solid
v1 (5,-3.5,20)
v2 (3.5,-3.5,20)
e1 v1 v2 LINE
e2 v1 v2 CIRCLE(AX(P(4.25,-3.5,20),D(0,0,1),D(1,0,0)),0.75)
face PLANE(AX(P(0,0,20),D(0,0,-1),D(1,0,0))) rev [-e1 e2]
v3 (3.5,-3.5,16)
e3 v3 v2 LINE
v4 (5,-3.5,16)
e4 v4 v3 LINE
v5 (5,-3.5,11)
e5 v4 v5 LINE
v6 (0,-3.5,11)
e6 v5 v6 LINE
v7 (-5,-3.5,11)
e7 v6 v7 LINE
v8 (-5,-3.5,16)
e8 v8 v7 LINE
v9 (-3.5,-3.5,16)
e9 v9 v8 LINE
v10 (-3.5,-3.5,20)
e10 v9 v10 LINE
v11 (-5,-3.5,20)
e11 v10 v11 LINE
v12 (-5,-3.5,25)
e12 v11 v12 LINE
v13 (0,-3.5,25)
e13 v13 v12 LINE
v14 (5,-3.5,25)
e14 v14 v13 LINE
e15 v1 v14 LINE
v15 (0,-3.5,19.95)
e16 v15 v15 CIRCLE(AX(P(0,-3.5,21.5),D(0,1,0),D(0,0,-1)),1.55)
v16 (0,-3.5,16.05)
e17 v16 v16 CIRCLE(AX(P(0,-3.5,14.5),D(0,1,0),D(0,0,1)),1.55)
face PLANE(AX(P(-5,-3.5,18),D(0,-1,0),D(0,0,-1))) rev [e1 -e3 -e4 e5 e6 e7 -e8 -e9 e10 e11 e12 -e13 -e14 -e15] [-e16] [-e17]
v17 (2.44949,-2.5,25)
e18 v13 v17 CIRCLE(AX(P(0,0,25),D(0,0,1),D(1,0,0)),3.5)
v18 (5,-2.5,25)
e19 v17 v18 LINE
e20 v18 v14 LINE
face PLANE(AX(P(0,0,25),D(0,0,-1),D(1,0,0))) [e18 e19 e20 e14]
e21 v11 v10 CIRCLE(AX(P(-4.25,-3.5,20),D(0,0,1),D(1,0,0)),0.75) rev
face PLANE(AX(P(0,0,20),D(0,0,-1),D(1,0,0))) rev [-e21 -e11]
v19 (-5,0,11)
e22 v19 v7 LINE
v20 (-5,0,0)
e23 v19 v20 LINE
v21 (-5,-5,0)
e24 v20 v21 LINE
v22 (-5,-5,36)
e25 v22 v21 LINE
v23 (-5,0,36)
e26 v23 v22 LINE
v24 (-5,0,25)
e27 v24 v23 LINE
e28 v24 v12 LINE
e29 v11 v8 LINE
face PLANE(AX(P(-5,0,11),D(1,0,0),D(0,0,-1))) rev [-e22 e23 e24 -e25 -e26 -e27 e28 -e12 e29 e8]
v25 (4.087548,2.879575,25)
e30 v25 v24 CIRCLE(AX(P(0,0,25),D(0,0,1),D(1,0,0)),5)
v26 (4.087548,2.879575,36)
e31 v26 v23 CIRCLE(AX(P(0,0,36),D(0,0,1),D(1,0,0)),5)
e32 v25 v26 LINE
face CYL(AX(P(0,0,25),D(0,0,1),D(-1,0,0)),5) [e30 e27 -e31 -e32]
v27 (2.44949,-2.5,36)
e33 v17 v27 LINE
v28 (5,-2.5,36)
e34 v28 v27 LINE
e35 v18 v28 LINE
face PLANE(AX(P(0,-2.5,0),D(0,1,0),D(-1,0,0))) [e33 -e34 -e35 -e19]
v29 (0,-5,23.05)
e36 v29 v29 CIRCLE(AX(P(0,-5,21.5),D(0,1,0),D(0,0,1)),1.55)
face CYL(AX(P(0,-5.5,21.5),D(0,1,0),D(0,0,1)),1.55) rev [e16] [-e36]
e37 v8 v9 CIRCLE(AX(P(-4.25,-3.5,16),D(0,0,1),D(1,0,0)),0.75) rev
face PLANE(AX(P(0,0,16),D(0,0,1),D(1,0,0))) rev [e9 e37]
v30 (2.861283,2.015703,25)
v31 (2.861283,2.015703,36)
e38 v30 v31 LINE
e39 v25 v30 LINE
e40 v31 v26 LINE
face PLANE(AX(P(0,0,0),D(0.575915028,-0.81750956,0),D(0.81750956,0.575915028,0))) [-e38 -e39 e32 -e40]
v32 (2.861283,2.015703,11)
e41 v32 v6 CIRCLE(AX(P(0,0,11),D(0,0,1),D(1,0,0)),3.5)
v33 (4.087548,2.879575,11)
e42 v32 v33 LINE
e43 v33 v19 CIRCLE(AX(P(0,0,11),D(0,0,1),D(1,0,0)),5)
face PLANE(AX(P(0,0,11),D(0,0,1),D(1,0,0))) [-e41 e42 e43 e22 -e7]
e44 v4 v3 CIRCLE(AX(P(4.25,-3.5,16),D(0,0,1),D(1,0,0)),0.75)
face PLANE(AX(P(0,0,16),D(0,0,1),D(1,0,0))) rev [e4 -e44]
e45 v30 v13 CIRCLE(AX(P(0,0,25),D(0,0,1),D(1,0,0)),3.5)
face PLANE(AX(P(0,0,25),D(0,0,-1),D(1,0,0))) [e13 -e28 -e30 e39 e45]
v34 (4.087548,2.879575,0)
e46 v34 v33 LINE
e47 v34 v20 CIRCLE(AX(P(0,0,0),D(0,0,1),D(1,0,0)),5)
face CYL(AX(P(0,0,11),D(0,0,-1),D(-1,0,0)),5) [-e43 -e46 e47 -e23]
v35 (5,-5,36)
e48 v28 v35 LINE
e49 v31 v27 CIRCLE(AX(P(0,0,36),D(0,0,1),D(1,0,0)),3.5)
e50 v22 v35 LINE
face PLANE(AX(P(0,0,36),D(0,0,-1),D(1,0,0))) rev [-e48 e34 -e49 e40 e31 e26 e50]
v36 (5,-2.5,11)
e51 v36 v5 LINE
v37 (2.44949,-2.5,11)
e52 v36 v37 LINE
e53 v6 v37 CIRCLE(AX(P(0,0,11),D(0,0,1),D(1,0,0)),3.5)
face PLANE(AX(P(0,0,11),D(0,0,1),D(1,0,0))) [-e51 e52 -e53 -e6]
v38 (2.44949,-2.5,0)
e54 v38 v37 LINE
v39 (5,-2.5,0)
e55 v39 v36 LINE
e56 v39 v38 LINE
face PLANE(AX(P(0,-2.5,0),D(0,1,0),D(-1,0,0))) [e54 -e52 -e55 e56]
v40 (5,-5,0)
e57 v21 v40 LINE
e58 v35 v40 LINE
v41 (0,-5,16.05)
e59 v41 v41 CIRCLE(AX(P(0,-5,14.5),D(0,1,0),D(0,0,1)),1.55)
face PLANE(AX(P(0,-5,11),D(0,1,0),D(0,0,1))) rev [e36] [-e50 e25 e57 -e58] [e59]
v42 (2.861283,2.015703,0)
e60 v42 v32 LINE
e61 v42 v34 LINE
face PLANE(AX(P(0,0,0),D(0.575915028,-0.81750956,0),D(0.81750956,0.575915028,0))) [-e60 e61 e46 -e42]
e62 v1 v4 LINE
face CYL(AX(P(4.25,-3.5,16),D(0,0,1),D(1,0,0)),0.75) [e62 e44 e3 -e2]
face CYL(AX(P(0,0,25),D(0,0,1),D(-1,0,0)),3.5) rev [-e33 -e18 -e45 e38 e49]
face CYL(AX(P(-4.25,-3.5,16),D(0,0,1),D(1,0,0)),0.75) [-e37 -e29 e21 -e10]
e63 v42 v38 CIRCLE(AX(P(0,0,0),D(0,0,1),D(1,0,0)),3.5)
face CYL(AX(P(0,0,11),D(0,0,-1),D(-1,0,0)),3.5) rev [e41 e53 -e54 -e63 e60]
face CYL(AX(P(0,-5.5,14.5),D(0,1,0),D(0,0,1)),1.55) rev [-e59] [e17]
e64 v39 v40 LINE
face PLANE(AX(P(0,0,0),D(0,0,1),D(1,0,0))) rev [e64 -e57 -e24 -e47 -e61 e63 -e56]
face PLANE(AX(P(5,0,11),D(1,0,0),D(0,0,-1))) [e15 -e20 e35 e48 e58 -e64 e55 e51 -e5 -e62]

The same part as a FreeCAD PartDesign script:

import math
import FreeCAD as App
import Part
import Sketcher

doc = App.newDocument("Part")
params = doc.addObject("Spreadsheet::Sheet", "Params")
for row, (alias, value) in enumerate([
    ("sketch1_diameter", "7 mm"),
    ("sketch1_radius", "5 mm"),
    ("sketch1_height", "5 mm"),
    ("pad1_length", "11 mm"),
    ("sketch2_width", "10 mm"),
    ("sketch2_height", "1.5 mm"),
    ("pad2_length", "7 mm"),
    ("sketch3_radius", "0.75 mm"),
    ("pad3_length", "2 mm"),
    ("sketch4_diameter", "3.1 mm"),
    ("pocket1_length", "2 mm"),
    ("sketch5_radius", "5 mm"),
    ("sketch5_radius2", "3.5 mm"),
    ("sketch5_height", "2.5 mm"),
], start=1):
    params.set(f"A{row}", alias)
    params.set(f"B{row}", "=" + value)
    params.setAlias(f"B{row}", alias)

body = doc.addObject("PartDesign::Body", "Body")

sketch1 = body.newObject("Sketcher::SketchObject", "Sketch")
sketch1.AttachmentSupport = (doc.getObject("XY_Plane"), [""])
sketch1.MapMode = "FlatFace"
sketch1.addGeometry([
    Part.LineSegment(App.Vector(-5, -5, 0), App.Vector(5, -5, 0)),
    Part.LineSegment(App.Vector(5, -5, 0), App.Vector(5, 0, 0)),
    Part.ArcOfCircle(Part.Circle(App.Vector(0, 0, 0), App.Vector(0, 0, 1), 5), math.radians(0), math.radians(90)),
    Part.ArcOfCircle(Part.Circle(App.Vector(0, 0, 0), App.Vector(0, 0, 1), 5), math.radians(90), math.radians(180)),
    Part.LineSegment(App.Vector(-5, 0, 0), App.Vector(-5, -5, 0)),
    Part.Circle(App.Vector(0, 0, 0), App.Vector(0, 0, 1), 3.5),
], False)
sketch1.addConstraint([
    Sketcher.Constraint("Coincident", 0, 2, 1, 1),
    Sketcher.Constraint("Tangent", 1, 2, 2, 1),
    Sketcher.Constraint("Tangent", 2, 2, 3, 1),
    Sketcher.Constraint("Tangent", 3, 2, 4, 1),
    Sketcher.Constraint("Coincident", 4, 2, 0, 1),
    Sketcher.Constraint("Horizontal", 0),
    Sketcher.Constraint("Vertical", 1),
    Sketcher.Constraint("Vertical", 4),
    Sketcher.Constraint("Coincident", 2, 3, -1, 1),
    Sketcher.Constraint("Coincident", 5, 3, -1, 1),
    Sketcher.Constraint("Equal", 2, 3),
    Sketcher.Constraint("PointOnObject", 2, 2, -2),
    Sketcher.Constraint("Diameter", 5, 7.0),
    Sketcher.Constraint("Radius", 2, 5.0),
    Sketcher.Constraint("DistanceY", 1, 1, 1, 2, 5.0),
])
sketch1.setExpression("Constraints[12]", "Params.sketch1_diameter")
sketch1.setExpression("Constraints[13]", "Params.sketch1_radius")
sketch1.setExpression("Constraints[14]", "Params.sketch1_height")
pad1 = body.newObject("PartDesign::Pad", "Pad")
pad1.Profile = sketch1
pad1.setExpression("Length", "Params.pad1_length")

sketch2 = body.newObject("Sketcher::SketchObject", "Sketch001")
sketch2.AttachmentSupport = (doc.getObject("XY_Plane"), [""])
sketch2.MapMode = "FlatFace"
sketch2.AttachmentOffset = App.Placement(App.Vector(0, 0, 11), App.Rotation())
sketch2.addGeometry([
    Part.LineSegment(App.Vector(-5, -3.5, 0), App.Vector(-5, -5, 0)),
    Part.LineSegment(App.Vector(-5, -5, 0), App.Vector(5, -5, 0)),
    Part.LineSegment(App.Vector(5, -5, 0), App.Vector(5, -3.5, 0)),
    Part.LineSegment(App.Vector(5, -3.5, 0), App.Vector(-5, -3.5, 0)),
], False)
sketch2.addConstraint([
    Sketcher.Constraint("Coincident", 0, 2, 1, 1),
    Sketcher.Constraint("Coincident", 1, 2, 2, 1),
    Sketcher.Constraint("Coincident", 2, 2, 3, 1),
    Sketcher.Constraint("Coincident", 3, 2, 0, 1),
    Sketcher.Constraint("Vertical", 0),
    Sketcher.Constraint("Horizontal", 1),
    Sketcher.Constraint("Vertical", 2),
    Sketcher.Constraint("Horizontal", 3),
    Sketcher.Constraint("DistanceX", 1, 1, 1, 2, 10.0),
    Sketcher.Constraint("DistanceY", 0, 2, 0, 1, 1.5),
    Sketcher.Constraint("DistanceX", 0, 2, -1, 1, 5.0),
    Sketcher.Constraint("DistanceY", 0, 2, -1, 1, 5.0),
])
sketch2.setExpression("Constraints[8]", "Params.sketch2_width")
sketch2.setExpression("Constraints[9]", "Params.sketch2_height")
pad2 = body.newObject("PartDesign::Pad", "Pad001")
pad2.Profile = sketch2
pad2.setExpression("Length", "Params.pad2_length")

sketch3 = body.newObject("Sketcher::SketchObject", "Sketch002")
sketch3.AttachmentSupport = (doc.getObject("XY_Plane"), [""])
sketch3.MapMode = "FlatFace"
sketch3.AttachmentOffset = App.Placement(App.Vector(0, 0, 18), App.Rotation())
sketch3.addGeometry([
    Part.LineSegment(App.Vector(3.5, -3.5, 0), App.Vector(5, -3.5, 0)),
    Part.ArcOfCircle(Part.Circle(App.Vector(4.2, -3.5, 0), App.Vector(0, 0, 1), 0.8), math.radians(0), math.radians(180)),
    Part.LineSegment(App.Vector(-5, -3.5, 0), App.Vector(-3.5, -3.5, 0)),
    Part.ArcOfCircle(Part.Circle(App.Vector(-4.2, -3.5, 0), App.Vector(0, 0, 1), 0.8), math.radians(0), math.radians(180)),
], False)
sketch3.addConstraint([
    Sketcher.Constraint("Coincident", 0, 1, 1, 2),
    Sketcher.Constraint("Coincident", 1, 1, 0, 2),
    Sketcher.Constraint("Coincident", 2, 1, 3, 2),
    Sketcher.Constraint("Coincident", 3, 1, 2, 2),
    Sketcher.Constraint("Horizontal", 0),
    Sketcher.Constraint("Horizontal", 2),
    Sketcher.Constraint("Equal", 1, 3),
    Sketcher.Constraint("Symmetric", 1, 3, 3, 3, -2),
    Sketcher.Constraint("Horizontal", 3, 3, 0, 1),
    Sketcher.Constraint("Horizontal", 1, 1, 2, 1),
    Sketcher.Constraint("Radius", 1, 0.75),
    Sketcher.Constraint("DistanceX", -1, 1, 1, 1, 5.0),
    Sketcher.Constraint("DistanceY", 1, 3, -1, 1, 3.5),
])
sketch3.setExpression("Constraints[10]", "Params.sketch3_radius")
pad3 = body.newObject("PartDesign::Pad", "Pad002")
pad3.Profile = sketch3
pad3.setExpression("Length", "Params.pad3_length")
pad3.Reversed = True
doc.recompute()

datumplane = body.newObject("PartDesign::Plane", "DatumPlane")
datumplane.AttachmentSupport = (doc.getObject("XY_Plane"), [""])
datumplane.MapMode = "FlatFace"
datumplane.AttachmentOffset = App.Placement(App.Vector(0, 0, 18), App.Rotation())
mirrored = body.newObject("PartDesign::Mirrored", "Mirrored")
mirrored.Originals = [pad1, pad2, pad3]
mirrored.MirrorPlane = (datumplane, [""])
body.Tip = mirrored

sketch4 = body.newObject("Sketcher::SketchObject", "Sketch003")
sketch4.AttachmentSupport = (doc.getObject("XZ_Plane"), [""])
sketch4.MapMode = "FlatFace"
sketch4.AttachmentOffset = App.Placement(App.Vector(0, 0, 3.5), App.Rotation())
sketch4.addGeometry([
    Part.Circle(App.Vector(0, 14.5, 0), App.Vector(0, 0, 1), 1.6),
    Part.Circle(App.Vector(0, 21.5, 0), App.Vector(0, 0, 1), 1.6),
], False)
sketch4.addConstraint([
    Sketcher.Constraint("Equal", 0, 1),
    Sketcher.Constraint("PointOnObject", 0, 3, -2),
    Sketcher.Constraint("PointOnObject", 1, 3, -2),
    Sketcher.Constraint("Diameter", 0, 3.1),
    Sketcher.Constraint("DistanceY", 0, 3, 1, 3, 7.0),
    Sketcher.Constraint("DistanceY", -1, 1, 0, 3, 14.5),
])
sketch4.setExpression("Constraints[3]", "Params.sketch4_diameter")
pocket1 = body.newObject("PartDesign::Pocket", "Pocket")
pocket1.Profile = sketch4
pocket1.setExpression("Length", "Params.pocket1_length")
pocket1.Reversed = True

sketch5 = body.newObject("Sketcher::SketchObject", "Sketch004")
sketch5.AttachmentSupport = (doc.getObject("XY_Plane"), [""])
sketch5.MapMode = "FlatFace"
sketch5.AttachmentOffset = App.Placement(App.Vector(0, 0, 36), App.Rotation())
sketch5.addGeometry([
    Part.LineSegment(App.Vector(2.4, -2.5, 0), App.Vector(5, -2.5, 0)),
    Part.LineSegment(App.Vector(5, -2.5, 0), App.Vector(5, 0, 0)),
    Part.ArcOfCircle(Part.Circle(App.Vector(0, 0, 0), App.Vector(0, 0, 1), 5), math.radians(0), math.radians(35)),
    Part.LineSegment(App.Vector(4.1, 2.9, 0), App.Vector(2.9, 2, 0)),
    Part.ArcOfCircle(Part.Circle(App.Vector(0, 0, 0), App.Vector(0, 0, 1), 3.5), math.radians(0), math.radians(35)),
    Part.ArcOfCircle(Part.Circle(App.Vector(0, 0, 0), App.Vector(0, 0, 1), 3.5), math.radians(-46), math.radians(0)),
], False)
sketch5.addConstraint([
    Sketcher.Constraint("Coincident", 0, 2, 1, 1),
    Sketcher.Constraint("Tangent", 1, 2, 2, 1),
    Sketcher.Constraint("Coincident", 2, 2, 3, 1),
    Sketcher.Constraint("Coincident", 3, 2, 4, 2),
    Sketcher.Constraint("Tangent", 4, 1, 5, 2),
    Sketcher.Constraint("Coincident", 5, 1, 0, 1),
    Sketcher.Constraint("Horizontal", 0),
    Sketcher.Constraint("Vertical", 1),
    Sketcher.Constraint("Coincident", 2, 3, -1, 1),
    Sketcher.Constraint("Coincident", 4, 3, -1, 1),
    Sketcher.Constraint("Equal", 4, 5),
    Sketcher.Constraint("PointOnObject", 4, 1, -1),
    Sketcher.Constraint("Radius", 2, 5.0),
    Sketcher.Constraint("Radius", 4, 3.5),
    Sketcher.Constraint("DistanceY", 1, 1, 1, 2, 2.5),
    Sketcher.Constraint("DistanceX", -1, 1, 2, 2, 4.087548),
    Sketcher.Constraint("DistanceX", -1, 1, 3, 2, 2.861283),
])
sketch5.setExpression("Constraints[12]", "Params.sketch5_radius")
sketch5.setExpression("Constraints[13]", "Params.sketch5_radius2")
sketch5.setExpression("Constraints[14]", "Params.sketch5_height")
pocket2 = body.newObject("PartDesign::Pocket", "Pocket001")
pocket2.Profile = sketch5
pocket2.Type = "ThroughAll"

doc.recompute()
